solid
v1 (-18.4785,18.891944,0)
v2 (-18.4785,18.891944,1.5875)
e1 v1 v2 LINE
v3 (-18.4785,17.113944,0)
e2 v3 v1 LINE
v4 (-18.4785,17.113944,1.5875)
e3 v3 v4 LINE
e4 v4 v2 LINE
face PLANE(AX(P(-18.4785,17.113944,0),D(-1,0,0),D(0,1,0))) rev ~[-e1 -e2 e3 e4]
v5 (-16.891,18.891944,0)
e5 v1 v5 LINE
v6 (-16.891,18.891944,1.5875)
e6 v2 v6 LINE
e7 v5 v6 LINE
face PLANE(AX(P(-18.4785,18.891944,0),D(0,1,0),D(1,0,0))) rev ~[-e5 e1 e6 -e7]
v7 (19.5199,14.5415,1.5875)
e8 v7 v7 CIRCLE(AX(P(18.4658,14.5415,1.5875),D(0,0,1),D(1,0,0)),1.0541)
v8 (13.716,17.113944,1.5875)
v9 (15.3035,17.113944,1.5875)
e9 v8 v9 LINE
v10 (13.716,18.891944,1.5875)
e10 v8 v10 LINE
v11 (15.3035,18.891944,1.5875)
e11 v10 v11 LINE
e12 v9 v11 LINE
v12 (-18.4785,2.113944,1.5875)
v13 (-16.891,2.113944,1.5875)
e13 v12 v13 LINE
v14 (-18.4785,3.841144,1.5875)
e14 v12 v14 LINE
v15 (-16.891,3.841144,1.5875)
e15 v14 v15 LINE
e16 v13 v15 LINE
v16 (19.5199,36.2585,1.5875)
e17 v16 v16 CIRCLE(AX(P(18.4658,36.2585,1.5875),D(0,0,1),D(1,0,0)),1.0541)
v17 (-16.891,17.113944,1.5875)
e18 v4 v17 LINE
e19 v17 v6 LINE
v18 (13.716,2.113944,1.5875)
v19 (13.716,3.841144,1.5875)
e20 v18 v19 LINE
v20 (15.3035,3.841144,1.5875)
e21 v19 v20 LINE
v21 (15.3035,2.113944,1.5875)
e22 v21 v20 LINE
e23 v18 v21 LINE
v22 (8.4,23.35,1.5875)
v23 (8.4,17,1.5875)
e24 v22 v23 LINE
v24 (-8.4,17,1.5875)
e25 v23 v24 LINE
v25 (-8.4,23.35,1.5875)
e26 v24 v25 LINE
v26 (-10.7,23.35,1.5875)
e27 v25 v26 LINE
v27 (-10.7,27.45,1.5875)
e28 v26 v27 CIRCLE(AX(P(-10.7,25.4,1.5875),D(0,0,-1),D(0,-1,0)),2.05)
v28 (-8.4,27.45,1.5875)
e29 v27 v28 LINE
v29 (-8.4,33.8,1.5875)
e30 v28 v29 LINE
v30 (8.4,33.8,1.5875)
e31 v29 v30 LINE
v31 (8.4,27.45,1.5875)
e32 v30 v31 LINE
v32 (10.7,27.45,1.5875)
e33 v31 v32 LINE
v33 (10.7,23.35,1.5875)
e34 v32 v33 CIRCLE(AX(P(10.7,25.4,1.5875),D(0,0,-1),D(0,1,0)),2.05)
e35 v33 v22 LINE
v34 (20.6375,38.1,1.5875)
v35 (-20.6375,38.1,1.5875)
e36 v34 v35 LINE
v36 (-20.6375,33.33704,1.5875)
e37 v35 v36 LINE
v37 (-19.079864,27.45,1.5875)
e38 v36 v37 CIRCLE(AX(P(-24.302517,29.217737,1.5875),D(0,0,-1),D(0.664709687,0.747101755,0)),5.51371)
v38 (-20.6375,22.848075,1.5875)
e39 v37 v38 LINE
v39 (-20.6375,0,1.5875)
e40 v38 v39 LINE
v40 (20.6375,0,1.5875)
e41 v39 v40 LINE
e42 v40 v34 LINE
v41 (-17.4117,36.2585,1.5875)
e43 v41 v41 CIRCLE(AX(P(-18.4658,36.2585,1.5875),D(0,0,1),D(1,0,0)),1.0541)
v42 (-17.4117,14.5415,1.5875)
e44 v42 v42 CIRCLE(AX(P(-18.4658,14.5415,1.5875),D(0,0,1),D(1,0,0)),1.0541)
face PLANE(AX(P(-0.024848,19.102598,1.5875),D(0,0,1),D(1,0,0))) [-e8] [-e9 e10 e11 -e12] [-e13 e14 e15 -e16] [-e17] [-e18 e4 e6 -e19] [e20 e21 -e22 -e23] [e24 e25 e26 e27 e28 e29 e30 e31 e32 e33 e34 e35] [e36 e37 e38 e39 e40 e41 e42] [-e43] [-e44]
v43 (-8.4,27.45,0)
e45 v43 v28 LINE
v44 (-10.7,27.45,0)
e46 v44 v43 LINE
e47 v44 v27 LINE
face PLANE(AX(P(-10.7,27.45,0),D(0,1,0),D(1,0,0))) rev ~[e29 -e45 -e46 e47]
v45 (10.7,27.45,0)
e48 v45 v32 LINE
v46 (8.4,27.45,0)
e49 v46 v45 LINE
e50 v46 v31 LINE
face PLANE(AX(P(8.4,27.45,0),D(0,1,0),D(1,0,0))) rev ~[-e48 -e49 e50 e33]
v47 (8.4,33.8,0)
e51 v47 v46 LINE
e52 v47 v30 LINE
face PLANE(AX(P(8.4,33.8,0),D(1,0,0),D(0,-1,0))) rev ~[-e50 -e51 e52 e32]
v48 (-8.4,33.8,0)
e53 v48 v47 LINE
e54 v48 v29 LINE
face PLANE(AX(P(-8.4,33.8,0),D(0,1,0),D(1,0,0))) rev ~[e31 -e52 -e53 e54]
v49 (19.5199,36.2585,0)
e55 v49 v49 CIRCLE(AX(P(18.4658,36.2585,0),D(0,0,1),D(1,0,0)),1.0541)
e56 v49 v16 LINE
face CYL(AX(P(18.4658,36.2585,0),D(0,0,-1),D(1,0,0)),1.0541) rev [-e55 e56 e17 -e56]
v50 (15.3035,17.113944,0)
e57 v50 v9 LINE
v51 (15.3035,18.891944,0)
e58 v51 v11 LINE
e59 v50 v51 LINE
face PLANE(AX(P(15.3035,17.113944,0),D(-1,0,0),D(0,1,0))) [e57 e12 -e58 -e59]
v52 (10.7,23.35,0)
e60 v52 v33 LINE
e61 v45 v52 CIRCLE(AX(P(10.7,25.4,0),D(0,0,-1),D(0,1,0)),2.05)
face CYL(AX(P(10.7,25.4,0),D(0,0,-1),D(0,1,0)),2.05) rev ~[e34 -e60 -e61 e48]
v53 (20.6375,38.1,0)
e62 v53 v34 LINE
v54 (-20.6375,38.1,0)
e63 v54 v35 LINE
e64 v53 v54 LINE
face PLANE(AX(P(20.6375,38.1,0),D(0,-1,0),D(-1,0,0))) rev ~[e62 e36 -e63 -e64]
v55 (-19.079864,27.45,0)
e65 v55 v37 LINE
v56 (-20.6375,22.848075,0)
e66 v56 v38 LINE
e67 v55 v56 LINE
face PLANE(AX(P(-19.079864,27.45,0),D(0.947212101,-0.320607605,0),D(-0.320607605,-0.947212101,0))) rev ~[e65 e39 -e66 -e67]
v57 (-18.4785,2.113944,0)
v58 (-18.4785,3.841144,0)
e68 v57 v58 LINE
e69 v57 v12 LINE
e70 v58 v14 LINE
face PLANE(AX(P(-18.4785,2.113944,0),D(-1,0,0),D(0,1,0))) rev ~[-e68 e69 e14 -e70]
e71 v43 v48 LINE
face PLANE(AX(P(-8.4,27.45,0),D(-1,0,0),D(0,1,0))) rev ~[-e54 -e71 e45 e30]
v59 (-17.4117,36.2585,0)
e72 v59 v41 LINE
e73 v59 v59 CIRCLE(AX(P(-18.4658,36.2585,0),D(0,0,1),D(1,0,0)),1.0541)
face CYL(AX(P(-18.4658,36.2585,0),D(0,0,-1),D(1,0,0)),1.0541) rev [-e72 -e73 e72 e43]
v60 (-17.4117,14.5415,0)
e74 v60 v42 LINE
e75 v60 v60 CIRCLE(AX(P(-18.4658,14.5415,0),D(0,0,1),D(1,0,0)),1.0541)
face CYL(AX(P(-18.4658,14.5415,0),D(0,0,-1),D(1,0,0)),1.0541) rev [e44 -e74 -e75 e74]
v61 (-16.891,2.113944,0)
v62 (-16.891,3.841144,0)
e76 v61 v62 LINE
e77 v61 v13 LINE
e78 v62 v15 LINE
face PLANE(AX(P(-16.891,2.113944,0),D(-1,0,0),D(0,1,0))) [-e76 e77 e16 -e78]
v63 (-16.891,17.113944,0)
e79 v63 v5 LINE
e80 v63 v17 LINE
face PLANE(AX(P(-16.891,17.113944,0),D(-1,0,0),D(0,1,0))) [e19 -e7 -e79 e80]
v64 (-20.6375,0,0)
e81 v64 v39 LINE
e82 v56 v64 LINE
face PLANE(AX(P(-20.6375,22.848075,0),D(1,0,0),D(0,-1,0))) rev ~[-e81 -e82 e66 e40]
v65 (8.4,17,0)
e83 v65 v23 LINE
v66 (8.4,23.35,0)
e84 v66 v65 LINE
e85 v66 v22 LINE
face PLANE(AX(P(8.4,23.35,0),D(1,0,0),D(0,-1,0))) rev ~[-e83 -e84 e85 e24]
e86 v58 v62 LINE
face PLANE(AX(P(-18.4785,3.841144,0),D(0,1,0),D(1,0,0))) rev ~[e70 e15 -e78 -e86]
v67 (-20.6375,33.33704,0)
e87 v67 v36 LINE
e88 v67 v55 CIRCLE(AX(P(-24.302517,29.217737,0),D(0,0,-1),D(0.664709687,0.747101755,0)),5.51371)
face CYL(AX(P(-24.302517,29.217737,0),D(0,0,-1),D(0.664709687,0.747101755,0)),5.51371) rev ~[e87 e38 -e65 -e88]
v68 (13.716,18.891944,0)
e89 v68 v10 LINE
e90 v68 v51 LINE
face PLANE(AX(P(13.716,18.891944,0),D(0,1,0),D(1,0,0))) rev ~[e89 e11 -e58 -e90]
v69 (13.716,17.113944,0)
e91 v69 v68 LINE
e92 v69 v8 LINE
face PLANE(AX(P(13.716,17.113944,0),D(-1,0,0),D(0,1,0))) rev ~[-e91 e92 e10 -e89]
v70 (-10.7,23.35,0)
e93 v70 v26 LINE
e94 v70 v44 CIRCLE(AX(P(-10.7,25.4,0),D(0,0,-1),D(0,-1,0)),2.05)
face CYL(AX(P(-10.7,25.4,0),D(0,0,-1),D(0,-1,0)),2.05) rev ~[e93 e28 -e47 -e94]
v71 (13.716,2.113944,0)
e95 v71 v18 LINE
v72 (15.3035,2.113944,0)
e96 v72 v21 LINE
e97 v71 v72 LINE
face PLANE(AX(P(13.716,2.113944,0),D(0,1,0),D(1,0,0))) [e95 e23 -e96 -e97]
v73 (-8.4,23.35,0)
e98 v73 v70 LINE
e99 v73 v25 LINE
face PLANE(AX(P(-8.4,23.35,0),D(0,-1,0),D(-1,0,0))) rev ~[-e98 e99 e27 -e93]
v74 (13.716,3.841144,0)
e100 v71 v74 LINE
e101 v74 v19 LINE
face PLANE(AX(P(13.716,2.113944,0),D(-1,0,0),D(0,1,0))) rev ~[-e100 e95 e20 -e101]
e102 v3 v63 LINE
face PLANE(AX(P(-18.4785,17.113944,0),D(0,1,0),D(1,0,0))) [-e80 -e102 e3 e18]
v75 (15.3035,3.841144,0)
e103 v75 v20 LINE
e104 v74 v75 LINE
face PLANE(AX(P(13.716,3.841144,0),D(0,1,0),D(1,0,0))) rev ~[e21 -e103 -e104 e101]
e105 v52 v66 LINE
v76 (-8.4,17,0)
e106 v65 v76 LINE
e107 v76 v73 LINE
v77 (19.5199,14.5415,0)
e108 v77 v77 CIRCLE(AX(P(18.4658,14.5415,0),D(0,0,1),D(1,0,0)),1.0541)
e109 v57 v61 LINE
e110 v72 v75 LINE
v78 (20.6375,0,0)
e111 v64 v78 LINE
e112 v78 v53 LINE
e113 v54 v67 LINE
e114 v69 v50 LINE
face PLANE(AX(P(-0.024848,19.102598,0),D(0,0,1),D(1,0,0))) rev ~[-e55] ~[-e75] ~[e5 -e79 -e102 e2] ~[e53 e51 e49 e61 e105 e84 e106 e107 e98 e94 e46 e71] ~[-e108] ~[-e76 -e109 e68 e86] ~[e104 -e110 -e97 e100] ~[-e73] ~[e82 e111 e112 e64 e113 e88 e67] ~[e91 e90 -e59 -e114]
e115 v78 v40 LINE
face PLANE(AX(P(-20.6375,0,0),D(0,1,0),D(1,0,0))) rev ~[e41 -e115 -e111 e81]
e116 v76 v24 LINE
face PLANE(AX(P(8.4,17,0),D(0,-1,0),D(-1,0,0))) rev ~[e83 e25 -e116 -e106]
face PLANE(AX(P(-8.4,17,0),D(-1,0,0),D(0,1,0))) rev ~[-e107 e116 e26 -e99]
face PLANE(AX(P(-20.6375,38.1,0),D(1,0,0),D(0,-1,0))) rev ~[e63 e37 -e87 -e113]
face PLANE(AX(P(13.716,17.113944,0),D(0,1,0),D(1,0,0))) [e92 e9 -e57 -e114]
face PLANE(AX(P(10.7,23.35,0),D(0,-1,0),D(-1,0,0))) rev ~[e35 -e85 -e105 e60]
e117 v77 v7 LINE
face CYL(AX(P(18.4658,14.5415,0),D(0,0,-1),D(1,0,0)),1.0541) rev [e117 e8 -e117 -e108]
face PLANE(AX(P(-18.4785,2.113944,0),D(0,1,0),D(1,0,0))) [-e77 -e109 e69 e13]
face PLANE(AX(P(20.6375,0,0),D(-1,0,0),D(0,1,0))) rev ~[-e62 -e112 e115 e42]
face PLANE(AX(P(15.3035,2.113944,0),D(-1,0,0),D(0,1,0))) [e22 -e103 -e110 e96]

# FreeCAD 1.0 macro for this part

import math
import FreeCAD as App
import Part
import Sketcher
Q = App.Units.Quantity


def add_polygon(sketch, points):
    """Adds a closed chain of lines whose ends are joined by coincident constraints."""
    first, n = sketch.GeometryCount, len(points)
    for a, b in zip(points, points[1:] + points[:1]):
        sketch.addGeometry(Part.LineSegment(App.Vector(*a, 0), App.Vector(*b, 0)), False)
    for i in range(n):
        sketch.addConstraint(Sketcher.Constraint("Coincident", first + i, 2, first + (i + 1) % n, 1))

doc = App.newDocument("Part")
body = doc.addObject("PartDesign::Body", "Body")

sketch1 = body.newObject("Sketcher::SketchObject", "Sketch")
sketch1.AttachmentSupport = (doc.getObject("XY_Plane"), [""])
sketch1.MapMode = "FlatFace"
sketch1.addGeometry(Part.LineSegment(App.Vector(-20.6, 22.8, 0), App.Vector(-20.6, 0, 0)), False)
sketch1.addGeometry(Part.LineSegment(App.Vector(-20.6, 0, 0), App.Vector(20.6, 0, 0)), False)
sketch1.addGeometry(Part.LineSegment(App.Vector(20.6, 0, 0), App.Vector(20.6, 38.1, 0)), False)
sketch1.addGeometry(Part.LineSegment(App.Vector(20.6, 38.1, 0), App.Vector(-20.6, 38.1, 0)), False)
sketch1.addGeometry(Part.LineSegment(App.Vector(-20.6, 38.1, 0), App.Vector(-20.6, 33.3, 0)), False)
sketch1.addGeometry(Part.ArcOfCircle(Part.Circle(App.Vector(-24.3, 29.2, 0), App.Vector(0, 0, 1), 5.5), math.radians(-19), math.radians(48)), False)
sketch1.addGeometry(Part.LineSegment(App.Vector(-19.1, 27.4, 0), App.Vector(-20.6, 22.8, 0)), False)
add_polygon(sketch1, [(-16.9, 2.1), (-18.5, 2.1), (-18.5, 3.8), (-16.9, 3.8)])
sketch1.addGeometry(Part.Circle(App.Vector(-18.5, 14.5, 0), App.Vector(0, 0, 1), 1.1), False)
add_polygon(sketch1, [(-16.9, 17.1), (-18.5, 17.1), (-18.5, 18.9), (-16.9, 18.9)])
add_polygon(sketch1, [(15.3, 2.1), (13.7, 2.1), (13.7, 3.8), (15.3, 3.8)])
sketch1.addGeometry(Part.Circle(App.Vector(18.5, 14.5, 0), App.Vector(0, 0, 1), 1.1), False)
add_polygon(sketch1, [(15.3, 17.1), (13.7, 17.1), (13.7, 18.9), (15.3, 18.9)])
sketch1.addGeometry(Part.LineSegment(App.Vector(8.4, 17, 0), App.Vector(-8.4, 17, 0)), False)
sketch1.addGeometry(Part.LineSegment(App.Vector(-8.4, 17, 0), App.Vector(-8.4, 23.4, 0)), False)
sketch1.addGeometry(Part.LineSegment(App.Vector(-8.4, 23.4, 0), App.Vector(-10.7, 23.4, 0)), False)
sketch1.addGeometry(Part.ArcOfCircle(Part.Circle(App.Vector(-10.7, 25.4, 0), App.Vector(0, 0, 1), 2), math.radians(90), math.radians(270)), False)
sketch1.addGeometry(Part.LineSegment(App.Vector(-10.7, 27.4, 0), App.Vector(-8.4, 27.4, 0)), False)
sketch1.addGeometry(Part.LineSegment(App.Vector(-8.4, 27.4, 0), App.Vector(-8.4, 33.8, 0)), False)
sketch1.addGeometry(Part.LineSegment(App.Vector(-8.4, 33.8, 0), App.Vector(8.4, 33.8, 0)), False)
sketch1.addGeometry(Part.LineSegment(App.Vector(8.4, 33.8, 0), App.Vector(8.4, 27.4, 0)), False)
sketch1.addGeometry(Part.LineSegment(App.Vector(8.4, 27.4, 0), App.Vector(10.7, 27.4, 0)), False)
sketch1.addGeometry(Part.ArcOfCircle(Part.Circle(App.Vector(10.7, 25.4, 0), App.Vector(0, 0, 1), 2), math.radians(-90), math.radians(90)), False)
sketch1.addGeometry(Part.LineSegment(App.Vector(10.7, 23.4, 0), App.Vector(8.4, 23.4, 0)), False)
sketch1.addGeometry(Part.LineSegment(App.Vector(8.4, 23.4, 0), App.Vector(8.4, 17, 0)), False)
sketch1.addGeometry(Part.Circle(App.Vector(-18.5, 36.3, 0), App.Vector(0, 0, 1), 1.1), False)
sketch1.addGeometry(Part.Circle(App.Vector(18.5, 36.3, 0), App.Vector(0, 0, 1), 1.1), False)
sketch1.addConstraint([
    Sketcher.Constraint("Coincident", 0, 2, 1, 1),
    Sketcher.Constraint("Coincident", 1, 2, 2, 1),
    Sketcher.Constraint("Coincident", 2, 2, 3, 1),
    Sketcher.Constraint("Coincident", 3, 2, 4, 1),
    Sketcher.Constraint("Coincident", 4, 2, 5, 2),
    Sketcher.Constraint("Tangent", 5, 1, 6, 1),
    Sketcher.Constraint("Coincident", 6, 2, 0, 1),
    Sketcher.Constraint("Coincident", 25, 2, 26, 1),
    Sketcher.Constraint("Coincident", 26, 2, 27, 1),
    Sketcher.Constraint("Tangent", 27, 2, 28, 2),
    Sketcher.Constraint("Tangent", 28, 1, 29, 1),
    Sketcher.Constraint("Coincident", 29, 2, 30, 1),
    Sketcher.Constraint("Coincident", 30, 2, 31, 1),
    Sketcher.Constraint("Coincident", 31, 2, 32, 1),
    Sketcher.Constraint("Coincident", 32, 2, 33, 1),
    Sketcher.Constraint("Tangent", 33, 2, 34, 2),
    Sketcher.Constraint("Tangent", 34, 1, 35, 1),
    Sketcher.Constraint("Coincident", 35, 2, 36, 1),
    Sketcher.Constraint("Coincident", 36, 2, 25, 1),
    Sketcher.Constraint("Vertical", 0),
    Sketcher.Constraint("Horizontal", 1),
    Sketcher.Constraint("Vertical", 2),
    Sketcher.Constraint("Horizontal", 3),
    Sketcher.Constraint("Vertical", 4),
    Sketcher.Constraint("Horizontal", 7),
    Sketcher.Constraint("Vertical", 8),
    Sketcher.Constraint("Horizontal", 9),
    Sketcher.Constraint("Vertical", 10),
    Sketcher.Constraint("Horizontal", 12),
    Sketcher.Constraint("Vertical", 13),
    Sketcher.Constraint("Horizontal", 14),
    Sketcher.Constraint("Vertical", 15),
    Sketcher.Constraint("Horizontal", 16),
    Sketcher.Constraint("Vertical", 17),
    Sketcher.Constraint("Horizontal", 18),
    Sketcher.Constraint("Vertical", 19),
    Sketcher.Constraint("Horizontal", 21),
    Sketcher.Constraint("Vertical", 22),
    Sketcher.Constraint("Horizontal", 23),
    Sketcher.Constraint("Vertical", 24),
    Sketcher.Constraint("Horizontal", 25),
    Sketcher.Constraint("Vertical", 26),
    Sketcher.Constraint("Horizontal", 27),
    Sketcher.Constraint("Horizontal", 29),
    Sketcher.Constraint("Vertical", 30),
    Sketcher.Constraint("Horizontal", 31),
    Sketcher.Constraint("Vertical", 32),
    Sketcher.Constraint("Horizontal", 33),
    Sketcher.Constraint("Horizontal", 35),
    Sketcher.Constraint("Vertical", 36),
    Sketcher.Constraint("Equal", 11, 20),
    Sketcher.Constraint("Equal", 28, 34),
    Sketcher.Constraint("Equal", 20, 37),
    Sketcher.Constraint("Equal", 37, 38),
    Sketcher.Constraint("Symmetric", 0, 2, 1, 2, -1, 1),
    Sketcher.Constraint("Symmetric", 11, 3, 20, 3, -2),
    Sketcher.Constraint("Symmetric", 28, 3, 34, 3, -2),
    Sketcher.Constraint("Symmetric", 37, 3, 38, 3, -2),
    Sketcher.Constraint("Horizontal", 10, 2, 16, 2),
    Sketcher.Constraint("Horizontal", 9, 2, 17, 2),
    Sketcher.Constraint("Horizontal", 15, 2, 21, 2),
    Sketcher.Constraint("Horizontal", 14, 2, 22, 2),
    Sketcher.Constraint("Horizontal", 5, 1, 28, 1),
    Sketcher.Constraint("Vertical", 11, 3, 37, 3),
    Sketcher.Constraint("Vertical", 0, 2, 3, 2),
    Sketcher.Constraint("Vertical", 8, 2, 12, 2),
    Sketcher.Constraint("Vertical", 10, 2, 14, 2),
    Sketcher.Constraint("Vertical", 17, 2, 21, 2),
    Sketcher.Constraint("Vertical", 19, 2, 23, 2),
    Sketcher.Constraint("Vertical", 26, 2, 29, 2),
    Sketcher.Constraint("Vertical", 32, 2, 35, 2),
    Sketcher.Constraint("Equal", 14, 16),
    Sketcher.Constraint("Equal", 29, 33),
    Sketcher.Constraint("Equal", 26, 30),
    Sketcher.Constraint("Diameter", 11, Q("0.083 in")),
    Sketcher.Constraint("DistanceY", 2, 1, 2, 2, Q("1.5 in")),
    Sketcher.Constraint("DistanceY", -1, 1, 28, 3, Q("1 in")),
    Sketcher.Constraint("DistanceY", 13, 1, 13, 2, Q("0.07 in")),
    Sketcher.Constraint("DistanceY", 26, 1, 26, 2, Q("0.25 in")),
    Sketcher.Constraint("DistanceX", 1, 1, 1, 2, Q("1.625 in")),
    Sketcher.Constraint("DistanceX", 7, 2, 7, 1, Q("0.0625 in")),
    Sketcher.Constraint("DistanceY", 8, 1, 8, 2, Q("0.068 in")),
    Sketcher.Constraint("DistanceX", -1, 1, 16, 2, Q("0.54 in")),
    Sketcher.Constraint("Radius", 28, 2.05),
    Sketcher.Constraint("DistanceX", 11, 3, -1, 1, Q("0.727 in")),
    Sketcher.Constraint("DistanceX", 9, 2, -1, 1, Q("0.665 in")),
    Sketcher.Constraint("Radius", 5, 5.51371),
    Sketcher.Constraint("DistanceY", 11, 3, 37, 3, Q("0.855 in")),
    Sketcher.Constraint("DistanceX", 25, 2, 25, 1, 16.8),
    Sketcher.Constraint("DistanceX", 27, 2, 27, 1, 2.3),
    Sketcher.Constraint("DistanceY", -1, 1, 11, 3, Q("0.5725 in")),
    Sketcher.Constraint("DistanceY", 4, 2, 4, 1, 4.76296),
    Sketcher.Constraint("DistanceY", 8, 2, 12, 2, 13.2728),
    Sketcher.Constraint("Distance", 6, 4.858389),
    Sketcher.Constraint("DistanceY", 7, 2, 6, 2, 20.734131),
])
pad1 = body.newObject("PartDesign::Pad", "Pad")
pad1.Profile = sketch1
pad1.Length = Q("0.0625 in")

doc.recompute()
